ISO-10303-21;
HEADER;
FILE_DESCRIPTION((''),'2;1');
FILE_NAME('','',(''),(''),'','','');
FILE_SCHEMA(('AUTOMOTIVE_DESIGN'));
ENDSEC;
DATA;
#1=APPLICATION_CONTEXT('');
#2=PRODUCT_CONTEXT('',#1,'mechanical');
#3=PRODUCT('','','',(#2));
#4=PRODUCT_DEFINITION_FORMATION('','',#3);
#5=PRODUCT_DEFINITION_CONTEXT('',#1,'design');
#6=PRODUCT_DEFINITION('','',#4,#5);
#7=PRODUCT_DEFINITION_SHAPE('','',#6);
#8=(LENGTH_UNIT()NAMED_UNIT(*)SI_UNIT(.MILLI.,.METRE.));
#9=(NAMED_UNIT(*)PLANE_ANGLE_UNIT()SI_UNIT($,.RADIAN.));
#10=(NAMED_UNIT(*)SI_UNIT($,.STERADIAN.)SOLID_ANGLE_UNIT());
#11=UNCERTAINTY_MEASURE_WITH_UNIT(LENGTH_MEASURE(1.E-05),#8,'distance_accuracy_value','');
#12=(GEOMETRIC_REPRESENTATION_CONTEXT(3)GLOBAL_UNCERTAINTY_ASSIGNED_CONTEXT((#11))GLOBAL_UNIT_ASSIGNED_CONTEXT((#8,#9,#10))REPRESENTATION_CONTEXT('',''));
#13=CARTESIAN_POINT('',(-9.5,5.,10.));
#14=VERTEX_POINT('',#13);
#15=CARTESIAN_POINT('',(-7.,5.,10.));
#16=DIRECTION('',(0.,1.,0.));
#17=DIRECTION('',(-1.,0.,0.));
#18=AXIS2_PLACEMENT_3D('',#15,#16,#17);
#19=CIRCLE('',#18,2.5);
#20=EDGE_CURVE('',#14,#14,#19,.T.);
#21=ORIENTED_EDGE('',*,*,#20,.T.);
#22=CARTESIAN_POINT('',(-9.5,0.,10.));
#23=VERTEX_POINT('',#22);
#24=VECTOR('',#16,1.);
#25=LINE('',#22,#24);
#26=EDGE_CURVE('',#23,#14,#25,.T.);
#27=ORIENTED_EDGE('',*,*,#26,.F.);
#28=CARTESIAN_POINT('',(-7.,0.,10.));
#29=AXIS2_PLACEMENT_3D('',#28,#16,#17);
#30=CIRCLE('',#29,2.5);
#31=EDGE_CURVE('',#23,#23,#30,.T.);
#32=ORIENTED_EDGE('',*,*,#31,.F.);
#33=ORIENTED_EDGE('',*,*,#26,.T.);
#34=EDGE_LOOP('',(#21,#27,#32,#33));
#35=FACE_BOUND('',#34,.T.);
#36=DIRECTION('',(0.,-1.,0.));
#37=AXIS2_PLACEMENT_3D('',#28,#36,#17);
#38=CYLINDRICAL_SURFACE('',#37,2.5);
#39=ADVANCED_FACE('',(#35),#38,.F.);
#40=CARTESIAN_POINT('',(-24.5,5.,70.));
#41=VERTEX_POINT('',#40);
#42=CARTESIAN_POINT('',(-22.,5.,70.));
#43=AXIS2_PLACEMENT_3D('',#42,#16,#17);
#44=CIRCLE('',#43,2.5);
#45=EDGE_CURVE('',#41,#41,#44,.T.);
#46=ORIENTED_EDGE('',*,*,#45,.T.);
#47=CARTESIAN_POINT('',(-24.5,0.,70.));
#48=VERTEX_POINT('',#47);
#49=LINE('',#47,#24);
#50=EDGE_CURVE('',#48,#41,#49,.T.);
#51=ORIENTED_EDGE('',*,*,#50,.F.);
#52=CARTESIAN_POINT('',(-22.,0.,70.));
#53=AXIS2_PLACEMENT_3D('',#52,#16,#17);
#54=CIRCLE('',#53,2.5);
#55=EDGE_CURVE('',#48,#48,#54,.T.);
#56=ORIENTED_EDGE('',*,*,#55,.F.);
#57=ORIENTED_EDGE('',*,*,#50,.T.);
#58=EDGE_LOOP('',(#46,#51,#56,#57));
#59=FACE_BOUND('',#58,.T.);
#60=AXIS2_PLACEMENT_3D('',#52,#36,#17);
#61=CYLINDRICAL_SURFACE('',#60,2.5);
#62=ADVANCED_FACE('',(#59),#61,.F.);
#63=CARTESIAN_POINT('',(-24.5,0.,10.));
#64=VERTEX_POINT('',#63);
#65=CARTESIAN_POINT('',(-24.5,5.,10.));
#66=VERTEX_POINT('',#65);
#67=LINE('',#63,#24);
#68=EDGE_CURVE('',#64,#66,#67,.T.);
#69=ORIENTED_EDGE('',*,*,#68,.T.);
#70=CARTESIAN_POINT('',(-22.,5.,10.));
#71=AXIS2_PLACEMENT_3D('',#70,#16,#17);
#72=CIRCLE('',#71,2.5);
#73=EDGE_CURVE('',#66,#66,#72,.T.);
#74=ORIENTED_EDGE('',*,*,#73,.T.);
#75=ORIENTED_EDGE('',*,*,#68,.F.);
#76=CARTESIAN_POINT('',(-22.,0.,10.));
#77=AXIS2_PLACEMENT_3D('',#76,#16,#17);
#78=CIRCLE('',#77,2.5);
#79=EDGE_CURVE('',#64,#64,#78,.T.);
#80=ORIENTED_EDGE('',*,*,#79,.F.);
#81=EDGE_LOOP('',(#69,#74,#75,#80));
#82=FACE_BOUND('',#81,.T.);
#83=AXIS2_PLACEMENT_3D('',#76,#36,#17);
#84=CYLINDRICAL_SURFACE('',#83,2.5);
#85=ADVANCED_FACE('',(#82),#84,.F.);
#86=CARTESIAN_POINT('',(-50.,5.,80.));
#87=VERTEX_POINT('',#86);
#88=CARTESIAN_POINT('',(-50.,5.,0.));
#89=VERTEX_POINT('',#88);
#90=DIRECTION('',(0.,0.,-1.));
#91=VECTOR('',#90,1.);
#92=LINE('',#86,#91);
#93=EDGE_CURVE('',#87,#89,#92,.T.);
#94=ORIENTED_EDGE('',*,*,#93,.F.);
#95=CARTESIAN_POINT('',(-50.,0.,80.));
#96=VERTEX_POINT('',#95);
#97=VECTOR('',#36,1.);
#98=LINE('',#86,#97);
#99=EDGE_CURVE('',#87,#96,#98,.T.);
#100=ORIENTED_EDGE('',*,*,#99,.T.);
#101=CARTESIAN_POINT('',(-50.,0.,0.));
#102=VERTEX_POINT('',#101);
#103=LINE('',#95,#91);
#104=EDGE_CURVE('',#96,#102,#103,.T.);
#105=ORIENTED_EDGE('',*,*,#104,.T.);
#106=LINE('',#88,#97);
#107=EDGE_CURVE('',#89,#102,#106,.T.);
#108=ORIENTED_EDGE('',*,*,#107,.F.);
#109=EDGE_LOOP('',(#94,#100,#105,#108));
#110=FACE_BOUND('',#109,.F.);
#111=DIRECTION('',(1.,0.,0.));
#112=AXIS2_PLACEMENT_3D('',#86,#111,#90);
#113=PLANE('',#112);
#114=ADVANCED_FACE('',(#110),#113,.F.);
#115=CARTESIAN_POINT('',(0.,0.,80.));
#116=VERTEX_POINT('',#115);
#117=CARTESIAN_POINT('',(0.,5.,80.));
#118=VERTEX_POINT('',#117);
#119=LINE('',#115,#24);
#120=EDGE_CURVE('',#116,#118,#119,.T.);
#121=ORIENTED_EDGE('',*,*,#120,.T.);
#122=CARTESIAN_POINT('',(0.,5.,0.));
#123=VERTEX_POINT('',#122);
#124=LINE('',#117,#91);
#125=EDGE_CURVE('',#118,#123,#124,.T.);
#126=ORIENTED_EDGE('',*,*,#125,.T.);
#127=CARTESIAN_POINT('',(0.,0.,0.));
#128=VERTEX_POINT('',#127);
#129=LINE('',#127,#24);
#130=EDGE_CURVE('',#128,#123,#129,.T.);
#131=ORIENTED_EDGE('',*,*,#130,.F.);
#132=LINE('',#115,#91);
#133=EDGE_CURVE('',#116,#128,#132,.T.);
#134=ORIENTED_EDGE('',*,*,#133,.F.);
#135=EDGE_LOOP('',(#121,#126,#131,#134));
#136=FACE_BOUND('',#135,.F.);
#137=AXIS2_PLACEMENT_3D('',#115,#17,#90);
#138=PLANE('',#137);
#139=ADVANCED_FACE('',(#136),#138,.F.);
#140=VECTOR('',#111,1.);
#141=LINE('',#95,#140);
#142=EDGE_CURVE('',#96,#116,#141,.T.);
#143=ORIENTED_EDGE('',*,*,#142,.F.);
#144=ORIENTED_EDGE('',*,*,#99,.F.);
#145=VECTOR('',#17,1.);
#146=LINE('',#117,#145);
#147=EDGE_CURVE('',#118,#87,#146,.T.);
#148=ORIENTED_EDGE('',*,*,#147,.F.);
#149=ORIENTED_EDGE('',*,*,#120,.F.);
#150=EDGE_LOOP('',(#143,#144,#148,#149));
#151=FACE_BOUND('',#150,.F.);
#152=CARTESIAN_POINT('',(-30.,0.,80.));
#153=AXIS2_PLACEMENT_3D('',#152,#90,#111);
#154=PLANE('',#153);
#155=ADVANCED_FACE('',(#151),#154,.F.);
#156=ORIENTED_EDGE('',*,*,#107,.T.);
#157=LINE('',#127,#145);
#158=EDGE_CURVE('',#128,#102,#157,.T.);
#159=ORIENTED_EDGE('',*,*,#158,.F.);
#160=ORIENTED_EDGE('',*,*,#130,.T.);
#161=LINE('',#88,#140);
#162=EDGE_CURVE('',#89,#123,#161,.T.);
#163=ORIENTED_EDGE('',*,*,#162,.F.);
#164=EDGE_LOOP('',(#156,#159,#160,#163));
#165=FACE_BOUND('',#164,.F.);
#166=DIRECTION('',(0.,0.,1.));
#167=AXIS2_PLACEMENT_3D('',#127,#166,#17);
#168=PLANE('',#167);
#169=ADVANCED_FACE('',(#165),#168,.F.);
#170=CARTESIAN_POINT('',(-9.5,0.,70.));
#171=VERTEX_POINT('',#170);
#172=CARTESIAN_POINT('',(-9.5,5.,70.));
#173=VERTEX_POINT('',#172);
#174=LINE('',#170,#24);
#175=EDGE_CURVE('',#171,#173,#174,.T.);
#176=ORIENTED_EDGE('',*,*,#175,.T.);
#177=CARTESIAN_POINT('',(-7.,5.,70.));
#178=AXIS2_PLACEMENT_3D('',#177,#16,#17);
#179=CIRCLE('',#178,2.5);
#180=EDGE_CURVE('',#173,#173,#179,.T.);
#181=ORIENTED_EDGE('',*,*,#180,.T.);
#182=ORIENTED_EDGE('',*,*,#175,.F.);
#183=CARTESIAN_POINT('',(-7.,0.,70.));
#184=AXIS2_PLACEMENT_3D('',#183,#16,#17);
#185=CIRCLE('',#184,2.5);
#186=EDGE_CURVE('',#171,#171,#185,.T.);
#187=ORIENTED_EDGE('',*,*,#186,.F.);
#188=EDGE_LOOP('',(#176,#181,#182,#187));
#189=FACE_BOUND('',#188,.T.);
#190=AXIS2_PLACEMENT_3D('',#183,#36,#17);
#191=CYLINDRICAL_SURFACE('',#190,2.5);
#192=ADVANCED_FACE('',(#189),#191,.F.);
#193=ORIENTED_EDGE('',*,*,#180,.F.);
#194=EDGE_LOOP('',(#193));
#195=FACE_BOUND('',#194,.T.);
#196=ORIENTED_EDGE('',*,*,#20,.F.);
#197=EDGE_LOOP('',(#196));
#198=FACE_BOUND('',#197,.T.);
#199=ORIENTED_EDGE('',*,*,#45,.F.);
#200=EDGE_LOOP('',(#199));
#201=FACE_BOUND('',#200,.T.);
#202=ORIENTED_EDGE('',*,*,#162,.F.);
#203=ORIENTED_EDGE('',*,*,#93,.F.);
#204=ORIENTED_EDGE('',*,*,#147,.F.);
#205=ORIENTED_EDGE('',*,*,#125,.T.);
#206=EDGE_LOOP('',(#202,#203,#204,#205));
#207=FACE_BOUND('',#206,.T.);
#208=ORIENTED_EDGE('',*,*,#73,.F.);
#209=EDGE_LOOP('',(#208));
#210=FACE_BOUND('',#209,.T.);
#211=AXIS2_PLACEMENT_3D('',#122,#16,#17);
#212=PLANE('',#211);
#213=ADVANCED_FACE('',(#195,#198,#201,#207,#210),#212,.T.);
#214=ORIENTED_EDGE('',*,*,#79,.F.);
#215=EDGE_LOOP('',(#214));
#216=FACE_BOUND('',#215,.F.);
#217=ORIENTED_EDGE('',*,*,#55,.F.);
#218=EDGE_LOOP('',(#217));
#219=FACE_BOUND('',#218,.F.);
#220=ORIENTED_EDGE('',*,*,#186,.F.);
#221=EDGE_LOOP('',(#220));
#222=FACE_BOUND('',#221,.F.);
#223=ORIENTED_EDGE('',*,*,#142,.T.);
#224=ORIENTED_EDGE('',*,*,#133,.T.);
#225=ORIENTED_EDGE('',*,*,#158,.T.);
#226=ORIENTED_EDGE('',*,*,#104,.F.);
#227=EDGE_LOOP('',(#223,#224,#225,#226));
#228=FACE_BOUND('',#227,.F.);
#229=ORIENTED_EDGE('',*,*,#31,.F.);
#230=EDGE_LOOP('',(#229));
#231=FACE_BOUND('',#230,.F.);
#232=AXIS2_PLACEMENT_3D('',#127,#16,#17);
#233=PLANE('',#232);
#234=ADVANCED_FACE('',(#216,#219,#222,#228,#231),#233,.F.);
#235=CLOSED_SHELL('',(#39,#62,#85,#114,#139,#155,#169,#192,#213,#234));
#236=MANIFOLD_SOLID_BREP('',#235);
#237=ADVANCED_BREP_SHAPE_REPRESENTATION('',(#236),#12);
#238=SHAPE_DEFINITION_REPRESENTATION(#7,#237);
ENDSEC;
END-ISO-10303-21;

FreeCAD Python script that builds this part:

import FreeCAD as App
import Part
import Sketcher

V = App.Vector


def add_polygon(sketch, points):
    """Adds a closed chain of lines whose ends are joined by coincident constraints."""
    first, n = sketch.GeometryCount, len(points)
    for a, b in zip(points, points[1:] + points[:1]):
        sketch.addGeometry(Part.LineSegment(App.Vector(*a, 0), App.Vector(*b, 0)), False)
    for i in range(n):
        sketch.addConstraint(Sketcher.Constraint("Coincident", first + i, 2, first + (i + 1) % n, 1))

doc = App.newDocument("Part")
body = doc.addObject("PartDesign::Body", "Body")

sketch1 = body.newObject("Sketcher::SketchObject", "Sketch")
sketch1.AttachmentSupport = (doc.getObject("XZ_Plane"), [""])
sketch1.MapMode = "FlatFace"
add_polygon(sketch1, [(0, 80), (0, 0), (-30, 0), (-30, 80)])
sketch1.addGeometry(Part.Circle(V(-7, 10, 0), V(0, 0, 1), 2.5), False)
sketch1.addGeometry(Part.Circle(V(-22, 10, 0), V(0, 0, 1), 2.5), False)
sketch1.addGeometry(Part.Circle(V(-7, 70, 0), V(0, 0, 1), 2.5), False)
sketch1.addGeometry(Part.Circle(V(-22, 70, 0), V(0, 0, 1), 2.5), False)
sketch1.addConstraint([
    Sketcher.Constraint("Vertical", 0),
    Sketcher.Constraint("Horizontal", 1),
    Sketcher.Constraint("Vertical", 2),
    Sketcher.Constraint("Horizontal", 3),
    Sketcher.Constraint("Coincident", 0, 2, -1, 1),
    Sketcher.Constraint("Equal", 4, 5),
    Sketcher.Constraint("Equal", 5, 6),
    Sketcher.Constraint("Equal", 6, 7),
    Sketcher.Constraint("Horizontal", 4, 3, 5, 3),
    Sketcher.Constraint("Horizontal", 6, 3, 7, 3),
    Sketcher.Constraint("Vertical", 4, 3, 6, 3),
    Sketcher.Constraint("Vertical", 5, 3, 7, 3),
    Sketcher.Constraint("Diameter", 4, 5.0),
    Sketcher.Constraint("DistanceX", 1, 2, 1, 1, 30.0),
    Sketcher.Constraint("DistanceY", 0, 2, 0, 1, 80.0),
    Sketcher.Constraint("DistanceY", -1, 1, 4, 3, 10.0),
    Sketcher.Constraint("DistanceX", 5, 3, 4, 3, 15.0),
    Sketcher.Constraint("DistanceY", 4, 3, 6, 3, 60.0),
    Sketcher.Constraint("DistanceX", 1, 2, 5, 3, 8.0),
])
pad1 = body.newObject("PartDesign::Pad", "Pad")
pad1.Profile = sketch1
pad1.Length = 5
pad1.Reversed = True

sketch2 = body.newObject("Sketcher::SketchObject", "Sketch001")
sketch2.AttachmentSupport = (doc.getObject("XZ_Plane"), [""])
sketch2.MapMode = "FlatFace"
sketch2.AttachmentOffset = App.Placement(V(0, 0, -5), App.Rotation())
add_polygon(sketch2, [(-30, 80), (-30, 0), (-50, 0), (-50, 80)])
sketch2.addConstraint([
    Sketcher.Constraint("Vertical", 0),
    Sketcher.Constraint("Horizontal", 1),
    Sketcher.Constraint("Vertical", 2),
    Sketcher.Constraint("Horizontal", 3),
    Sketcher.Constraint("PointOnObject", 0, 2, -1),
    Sketcher.Constraint("DistanceX", 1, 2, 1, 1, 20.0),
    Sketcher.Constraint("DistanceY", 0, 2, 0, 1, 80.0),
    Sketcher.Constraint("DistanceX", 0, 2, -1, 1, 30.0),
])
pad2 = body.newObject("PartDesign::Pad", "Pad001")
pad2.Profile = sketch2
pad2.Length = 5

doc.recompute()
